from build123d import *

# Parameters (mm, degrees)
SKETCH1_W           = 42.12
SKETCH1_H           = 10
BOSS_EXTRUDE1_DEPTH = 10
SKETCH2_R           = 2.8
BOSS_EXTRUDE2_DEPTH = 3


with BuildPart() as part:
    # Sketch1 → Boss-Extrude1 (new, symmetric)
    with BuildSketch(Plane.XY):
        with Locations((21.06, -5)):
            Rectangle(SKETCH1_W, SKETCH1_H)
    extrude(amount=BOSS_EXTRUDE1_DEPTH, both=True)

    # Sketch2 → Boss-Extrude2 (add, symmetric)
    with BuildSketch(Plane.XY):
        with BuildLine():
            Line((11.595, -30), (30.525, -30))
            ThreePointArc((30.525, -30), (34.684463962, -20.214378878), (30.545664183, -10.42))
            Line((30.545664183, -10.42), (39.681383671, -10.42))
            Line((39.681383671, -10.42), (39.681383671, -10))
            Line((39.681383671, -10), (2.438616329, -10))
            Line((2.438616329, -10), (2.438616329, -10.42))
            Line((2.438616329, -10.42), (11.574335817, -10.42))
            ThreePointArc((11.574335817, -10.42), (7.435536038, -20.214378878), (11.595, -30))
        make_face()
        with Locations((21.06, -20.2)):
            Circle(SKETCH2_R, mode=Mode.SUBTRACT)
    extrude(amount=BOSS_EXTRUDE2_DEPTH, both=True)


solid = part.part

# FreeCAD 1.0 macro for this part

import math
import FreeCAD as App
import Part
import Sketcher
from FreeCAD import Vector
Q = App.Units.Quantity


def add_polygon(sketch, points):
    """Adds a closed chain of lines whose ends are joined by coincident constraints."""
    first, n = sketch.GeometryCount, len(points)
    for a, b in zip(points, points[1:] + points[:1]):
        sketch.addGeometry(Part.LineSegment(App.Vector(*a, 0), App.Vector(*b, 0)), False)
    for i in range(n):
        sketch.addConstraint(Sketcher.Constraint("Coincident", first + i, 2, first + (i + 1) % n, 1))

doc = App.newDocument("Part")
body = doc.addObject("PartDesign::Body", "Body")

# Sketch on XY plane
sketch1 = body.newObject("Sketcher::SketchObject", "Sketch")
sketch1.AttachmentSupport = (doc.getObject("XY_Plane"), [""])
sketch1.MapMode = "FlatFace"
add_polygon(sketch1, [(0, 0), (0, -10), (42, -10), (42, 0)])  # lines 0-3
sketch1.addConstraint([
    Sketcher.Constraint("Vertical", 0),
    Sketcher.Constraint("Horizontal", 1),
    Sketcher.Constraint("Vertical", 2),
    Sketcher.Constraint("Horizontal", 3),
    Sketcher.Constraint("Coincident", 3, 2, -1, 1),
    Sketcher.Constraint("DistanceY", 0, 2, 0, 1, Q("10 mm")),
    Sketcher.Constraint("DistanceX", 1, 1, 1, 2, Q("42.12 mm")),
])
pad1 = body.newObject("PartDesign::Pad", "Pad")
pad1.Profile = sketch1
pad1.Length = 20
pad1.Midplane = True

# Sketch on XY plane
sketch2 = body.newObject("Sketcher::SketchObject", "Sketch001")
sketch2.AttachmentSupport = (doc.getObject("XY_Plane"), [""])
sketch2.MapMode = "FlatFace"
sketch2.addGeometry([
    Part.LineSegment(Vector(11.6, -30, 0), Vector(30.52, -30, 0)),  # 0
    Part.ArcOfCircle(Part.Circle(Vector(21.06, -20.2, 0), Vector(0, 0, 1), 13.62), math.radians(-46), math.radians(46)),  # 1
    Part.LineSegment(Vector(30.55, -10.42, 0), Vector(39.68, -10.42, 0)),  # 2
    Part.LineSegment(Vector(39.68, -10.42, 0), Vector(39.68, -10, 0)),  # 3
    Part.LineSegment(Vector(39.68, -10, 0), Vector(2.44, -10, 0)),  # 4
    Part.LineSegment(Vector(2.44, -10, 0), Vector(2.44, -10.42, 0)),  # 5
    Part.LineSegment(Vector(2.44, -10.42, 0), Vector(11.57, -10.42, 0)),  # 6
    Part.ArcOfCircle(Part.Circle(Vector(21.06, -20.2, 0), Vector(0, 0, 1), 13.62), math.radians(134), math.radians(226)),  # 7
    Part.Circle(Vector(21.06, -20.2, 0), Vector(0, 0, 1), 2.8),  # 8
], False)
sketch2.addConstraint([
    Sketcher.Constraint("Coincident", 0, 2, 1, 1),
    Sketcher.Constraint("Coincident", 1, 2, 2, 1),
    Sketcher.Constraint("Coincident", 2, 2, 3, 1),
    Sketcher.Constraint("Coincident", 3, 2, 4, 1),
    Sketcher.Constraint("Coincident", 4, 2, 5, 1),
    Sketcher.Constraint("Coincident", 5, 2, 6, 1),
    Sketcher.Constraint("Coincident", 6, 2, 7, 1),
    Sketcher.Constraint("Coincident", 7, 2, 0, 1),
    Sketcher.Constraint("Horizontal", 0),
    Sketcher.Constraint("Horizontal", 2),
    Sketcher.Constraint("Vertical", 3),
    Sketcher.Constraint("Horizontal", 4),
    Sketcher.Constraint("Vertical", 5),
    Sketcher.Constraint("Horizontal", 6),
    Sketcher.Constraint("Coincident", 7, 3, 1, 3),
    Sketcher.Constraint("Coincident", 8, 3, 1, 3),
    Sketcher.Constraint("Equal", 1, 7),
    Sketcher.Constraint("Horizontal", 2, 2, 5, 2),
    Sketcher.Constraint("Equal", 2, 6),
    Sketcher.Constraint("Diameter", 8, Q("5.6 mm")),
    Sketcher.Constraint("DistanceY", 0, 2, -1, 1, Q("30 mm")),
    Sketcher.Constraint("DistanceY", 3, 2, -1, 1, Q("10 mm")),
    Sketcher.Constraint("DistanceX", 0, 1, 0, 2, Q("18.93 mm")),
    Sketcher.Constraint("DistanceY", 3, 1, 3, 2, Q("0.42 mm")),
    Sketcher.Constraint("DistanceY", 1, 3, -1, 1, Q("20.2 mm")),
    Sketcher.Constraint("DistanceX", -1, 1, 1, 3, Q("21.06 mm")),
    Sketcher.Constraint("DistanceX", 2, 1, 2, 2, Q("9.135719 mm")),
])
pad2 = body.newObject("PartDesign::Pad", "Pad001")
pad2.Profile = sketch2
pad2.Length = 6
pad2.Midplane = True

doc.recompute()
